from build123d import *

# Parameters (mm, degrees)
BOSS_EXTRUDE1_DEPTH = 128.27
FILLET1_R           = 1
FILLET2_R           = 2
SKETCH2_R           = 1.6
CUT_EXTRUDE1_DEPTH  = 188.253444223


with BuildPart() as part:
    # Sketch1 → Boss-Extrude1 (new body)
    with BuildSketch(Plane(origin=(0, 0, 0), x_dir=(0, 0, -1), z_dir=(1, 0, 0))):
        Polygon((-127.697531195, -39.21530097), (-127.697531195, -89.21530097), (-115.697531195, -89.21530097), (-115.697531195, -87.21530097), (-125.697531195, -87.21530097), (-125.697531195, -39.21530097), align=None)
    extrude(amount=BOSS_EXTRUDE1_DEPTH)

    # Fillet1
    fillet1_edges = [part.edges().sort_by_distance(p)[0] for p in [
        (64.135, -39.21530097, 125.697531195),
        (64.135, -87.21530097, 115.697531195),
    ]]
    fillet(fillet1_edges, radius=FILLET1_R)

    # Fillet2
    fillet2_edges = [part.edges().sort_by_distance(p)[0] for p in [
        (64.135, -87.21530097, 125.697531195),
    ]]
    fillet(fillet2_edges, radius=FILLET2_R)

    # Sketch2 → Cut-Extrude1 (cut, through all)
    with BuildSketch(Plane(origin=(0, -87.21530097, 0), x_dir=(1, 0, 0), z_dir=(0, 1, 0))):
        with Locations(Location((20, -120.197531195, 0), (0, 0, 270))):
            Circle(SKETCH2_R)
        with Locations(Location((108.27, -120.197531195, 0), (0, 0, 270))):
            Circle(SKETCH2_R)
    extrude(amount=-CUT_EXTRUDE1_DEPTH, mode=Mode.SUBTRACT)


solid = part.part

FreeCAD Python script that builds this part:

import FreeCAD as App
import Part
import Sketcher

V = App.Vector


def edges_at(feature, points):
    """Names of the edges that pass closest to the given points."""
    edges = feature.Shape.Edges
    near = lambda p: min(range(len(edges)), key=lambda i: edges[i].distToShape(Part.Vertex(*p))[0])
    return sorted({f"Edge{near(p) + 1}" for p in points})

doc = App.newDocument("Part")
params = doc.addObject("Spreadsheet::Sheet", "Params")
for row, (alias, value) in enumerate([
    ("sketch1_width", "50 mm"),
    ("sketch1_width2", "2 mm"),
    ("sketch1_height", "12 mm"),
    ("pad1_length", "128.27 mm"),
    ("fillet_radius", "1 mm"),
    ("fillet2_radius", "2 mm"),
    ("sketch2_diameter", "3.2 mm"),
], start=1):
    params.set(f"A{row}", alias)
    params.set(f"B{row}", "=" + value)
    params.setAlias(f"B{row}", alias)

body = doc.addObject("PartDesign::Body", "Body")

# Sketch on YZ plane
sketch1 = doc.addObject("Sketcher::SketchObject", "Sketch")
body.addObject(sketch1)
sketch1.AttachmentSupport = (doc.YZ_Plane, [""])
sketch1.MapMode = "FlatFace"
sketch1.addGeometry([
    Part.LineSegment(V(-39.2, 127.7, 0), V(-89.2, 127.7, 0)),  # 0
    Part.LineSegment(V(-89.2, 127.7, 0), V(-89.2, 115.7, 0)),  # 1
    Part.LineSegment(V(-89.2, 115.7, 0), V(-87.2, 115.7, 0)),  # 2
    Part.LineSegment(V(-87.2, 115.7, 0), V(-87.2, 125.7, 0)),  # 3
    Part.LineSegment(V(-87.2, 125.7, 0), V(-39.2, 125.7, 0)),  # 4
    Part.LineSegment(V(-39.2, 125.7, 0), V(-39.2, 127.7, 0)),  # 5
], False)
sketch1.addConstraint([
    Sketcher.Constraint("Coincident", 0, 2, 1, 1),
    Sketcher.Constraint("Coincident", 1, 2, 2, 1),
    Sketcher.Constraint("Coincident", 2, 2, 3, 1),
    Sketcher.Constraint("Coincident", 3, 2, 4, 1),
    Sketcher.Constraint("Coincident", 4, 2, 5, 1),
    Sketcher.Constraint("Coincident", 5, 2, 0, 1),
    Sketcher.Constraint("Horizontal", 0),
    Sketcher.Constraint("Vertical", 1),
    Sketcher.Constraint("Horizontal", 2),
    Sketcher.Constraint("Vertical", 3),
    Sketcher.Constraint("Horizontal", 4),
    Sketcher.Constraint("Vertical", 5),
    Sketcher.Constraint("Equal", 2, 5),
    Sketcher.Constraint("DistanceX", 0, 2, 0, 1, 50.0),
    Sketcher.Constraint("DistanceX", 2, 1, 2, 2, 2.0),
    Sketcher.Constraint("DistanceY", 1, 2, 1, 1, 12.0),
    Sketcher.Constraint("DistanceX", 0, 2, -1, 1, 89.215301),
    Sketcher.Constraint("DistanceY", -1, 1, 0, 2, 127.697531),
])
sketch1.setExpression("Constraints[13]", "Params.sketch1_width")
sketch1.setExpression("Constraints[14]", "Params.sketch1_width2")
sketch1.setExpression("Constraints[15]", "Params.sketch1_height")
pad1 = doc.addObject("PartDesign::Pad", "Pad")
body.addObject(pad1)
pad1.Profile = sketch1
pad1.setExpression("Length", "Params.pad1_length")
doc.recompute()

fillet = doc.addObject("PartDesign::Fillet", "Fillet")
body.addObject(fillet)
fillet.Base = (pad1, edges_at(pad1, [(64.135, -39.215, 125.698), (64.135, -87.215, 115.698)]))
fillet.setExpression("Radius", "Params.fillet_radius")
doc.recompute()

fillet2 = doc.addObject("PartDesign::Fillet", "Fillet001")
body.addObject(fillet2)
fillet2.Base = (fillet, edges_at(fillet, [(64.135, -87.215, 125.698)]))
fillet2.setExpression("Radius", "Params.fillet2_radius")

# Sketch on XZ plane
sketch2 = doc.addObject("Sketcher::SketchObject", "Sketch001")
body.addObject(sketch2)
sketch2.AttachmentSupport = (doc.XZ_Plane, [""])
sketch2.MapMode = "FlatFace"
sketch2.AttachmentOffset = App.Placement(V(0, 0, 87.215301), App.Rotation())
sketch2.addGeometry([
    Part.Circle(V(20, 120.2, 0), V(0, 0, 1), 1.6),
    Part.Circle(V(108.3, 120.2, 0), V(0, 0, 1), 1.6),
], False)
sketch2.addConstraint([
    Sketcher.Constraint("Equal", 0, 1),
    Sketcher.Constraint("Horizontal", 0, 3, 1, 3),
    Sketcher.Constraint("Diameter", 0, 3.2),
    Sketcher.Constraint("DistanceX", -1, 1, 0, 3, 20.0),
    Sketcher.Constraint("DistanceX", -1, 1, 1, 3, 108.27),
    Sketcher.Constraint("DistanceY", -1, 1, 0, 3, 120.197531),
])
sketch2.setExpression("Constraints[2]", "Params.sketch2_diameter")
pocket1 = doc.addObject("PartDesign::Pocket", "Pocket")
body.addObject(pocket1)
pocket1.Profile = sketch2
pocket1.Type = "ThroughAll"
pocket1.Reversed = True

doc.recompute()
